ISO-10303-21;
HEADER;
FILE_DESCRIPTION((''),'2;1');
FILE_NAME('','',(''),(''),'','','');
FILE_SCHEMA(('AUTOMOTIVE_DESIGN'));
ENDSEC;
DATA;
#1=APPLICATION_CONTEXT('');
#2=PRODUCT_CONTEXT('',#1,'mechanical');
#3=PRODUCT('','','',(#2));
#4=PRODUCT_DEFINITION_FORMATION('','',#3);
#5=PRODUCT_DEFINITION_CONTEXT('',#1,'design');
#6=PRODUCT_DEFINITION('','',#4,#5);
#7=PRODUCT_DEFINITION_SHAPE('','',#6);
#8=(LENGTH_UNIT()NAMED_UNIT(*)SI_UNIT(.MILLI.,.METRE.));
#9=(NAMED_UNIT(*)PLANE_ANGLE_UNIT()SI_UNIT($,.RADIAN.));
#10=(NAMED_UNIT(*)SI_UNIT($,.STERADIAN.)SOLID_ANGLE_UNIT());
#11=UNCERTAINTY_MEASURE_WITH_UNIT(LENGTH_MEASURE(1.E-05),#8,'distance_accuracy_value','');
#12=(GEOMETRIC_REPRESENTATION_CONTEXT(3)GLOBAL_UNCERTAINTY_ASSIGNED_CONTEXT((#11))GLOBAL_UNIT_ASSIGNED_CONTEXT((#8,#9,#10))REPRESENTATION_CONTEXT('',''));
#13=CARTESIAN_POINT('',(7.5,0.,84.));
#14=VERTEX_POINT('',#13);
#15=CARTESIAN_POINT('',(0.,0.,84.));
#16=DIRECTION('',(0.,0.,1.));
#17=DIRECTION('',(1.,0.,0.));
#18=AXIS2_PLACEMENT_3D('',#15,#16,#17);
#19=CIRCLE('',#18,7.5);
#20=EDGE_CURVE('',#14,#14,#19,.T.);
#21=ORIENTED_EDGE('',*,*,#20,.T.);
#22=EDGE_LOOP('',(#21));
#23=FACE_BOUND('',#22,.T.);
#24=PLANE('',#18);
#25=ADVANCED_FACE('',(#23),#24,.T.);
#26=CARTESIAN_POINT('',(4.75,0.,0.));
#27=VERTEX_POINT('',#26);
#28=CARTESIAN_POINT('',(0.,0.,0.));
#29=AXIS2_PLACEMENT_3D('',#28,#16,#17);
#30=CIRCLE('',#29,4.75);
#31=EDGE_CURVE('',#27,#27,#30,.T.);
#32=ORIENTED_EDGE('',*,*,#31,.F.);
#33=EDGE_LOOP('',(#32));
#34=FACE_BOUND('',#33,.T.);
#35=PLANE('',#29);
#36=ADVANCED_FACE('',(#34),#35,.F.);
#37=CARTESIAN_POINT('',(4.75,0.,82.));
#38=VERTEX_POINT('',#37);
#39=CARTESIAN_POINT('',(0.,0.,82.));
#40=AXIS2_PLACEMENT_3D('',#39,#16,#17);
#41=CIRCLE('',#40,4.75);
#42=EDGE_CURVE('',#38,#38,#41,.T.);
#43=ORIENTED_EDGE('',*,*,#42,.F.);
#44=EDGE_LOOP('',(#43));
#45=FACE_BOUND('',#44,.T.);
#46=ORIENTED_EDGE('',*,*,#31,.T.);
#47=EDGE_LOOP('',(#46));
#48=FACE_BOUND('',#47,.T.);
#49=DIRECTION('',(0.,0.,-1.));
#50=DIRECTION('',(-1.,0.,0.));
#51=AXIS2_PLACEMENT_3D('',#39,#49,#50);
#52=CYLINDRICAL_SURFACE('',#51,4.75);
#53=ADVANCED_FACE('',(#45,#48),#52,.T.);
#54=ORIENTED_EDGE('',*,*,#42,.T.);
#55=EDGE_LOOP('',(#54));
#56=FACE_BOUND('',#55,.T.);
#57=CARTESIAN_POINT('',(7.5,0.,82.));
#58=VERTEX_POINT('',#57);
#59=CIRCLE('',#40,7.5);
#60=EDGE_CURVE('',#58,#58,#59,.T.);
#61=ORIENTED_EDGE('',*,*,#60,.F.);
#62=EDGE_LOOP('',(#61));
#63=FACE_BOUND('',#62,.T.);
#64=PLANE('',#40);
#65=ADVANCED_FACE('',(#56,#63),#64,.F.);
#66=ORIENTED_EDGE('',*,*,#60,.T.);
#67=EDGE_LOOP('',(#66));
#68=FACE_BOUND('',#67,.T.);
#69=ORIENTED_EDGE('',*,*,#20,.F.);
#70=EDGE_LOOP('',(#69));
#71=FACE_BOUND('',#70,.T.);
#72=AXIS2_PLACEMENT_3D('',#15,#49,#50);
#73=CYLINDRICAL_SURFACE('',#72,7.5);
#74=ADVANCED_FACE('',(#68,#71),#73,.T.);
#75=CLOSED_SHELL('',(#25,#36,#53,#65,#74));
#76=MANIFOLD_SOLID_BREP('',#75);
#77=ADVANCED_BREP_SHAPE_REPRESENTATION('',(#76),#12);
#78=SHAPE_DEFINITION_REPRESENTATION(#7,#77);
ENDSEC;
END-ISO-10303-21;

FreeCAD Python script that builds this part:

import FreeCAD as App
import Part
import Sketcher

V = App.Vector
Q = App.Units.Quantity

doc = App.newDocument("Part")
body = doc.addObject("PartDesign::Body", "Body")

sketch1 = body.newObject("Sketcher::SketchObject", "Sketch")
sketch1.AttachmentSupport = (doc.getObject("XY_Plane"), [""])
sketch1.MapMode = "FlatFace"
sketch1.addGeometry(Part.Circle(V(0, 0, 0), V(0, 0, 1), 4.75), False)
sketch1.addConstraint([
    Sketcher.Constraint("Coincident", 0, 3, -1, 1),
    Sketcher.Constraint("Diameter", 0, Q("9.5 mm")),
])
pad1 = body.newObject("PartDesign::Pad", "Pad")
pad1.Profile = sketch1
pad1.Length = 82

sketch2 = body.newObject("Sketcher::SketchObject", "Sketch001")
sketch2.AttachmentSupport = (doc.getObject("XY_Plane"), [""])
sketch2.MapMode = "FlatFace"
sketch2.AttachmentOffset = App.Placement(V(0, 0, 82), App.Rotation())
sketch2.addGeometry(Part.Circle(V(0, 0, 0), V(0, 0, 1), 7.5), False)
sketch2.addConstraint([
    Sketcher.Constraint("Coincident", 0, 3, -1, 1),
    Sketcher.Constraint("Diameter", 0, Q("15 mm")),
])
pad2 = body.newObject("PartDesign::Pad", "Pad001")
pad2.Profile = sketch2
pad2.Length = 2

doc.recompute()
